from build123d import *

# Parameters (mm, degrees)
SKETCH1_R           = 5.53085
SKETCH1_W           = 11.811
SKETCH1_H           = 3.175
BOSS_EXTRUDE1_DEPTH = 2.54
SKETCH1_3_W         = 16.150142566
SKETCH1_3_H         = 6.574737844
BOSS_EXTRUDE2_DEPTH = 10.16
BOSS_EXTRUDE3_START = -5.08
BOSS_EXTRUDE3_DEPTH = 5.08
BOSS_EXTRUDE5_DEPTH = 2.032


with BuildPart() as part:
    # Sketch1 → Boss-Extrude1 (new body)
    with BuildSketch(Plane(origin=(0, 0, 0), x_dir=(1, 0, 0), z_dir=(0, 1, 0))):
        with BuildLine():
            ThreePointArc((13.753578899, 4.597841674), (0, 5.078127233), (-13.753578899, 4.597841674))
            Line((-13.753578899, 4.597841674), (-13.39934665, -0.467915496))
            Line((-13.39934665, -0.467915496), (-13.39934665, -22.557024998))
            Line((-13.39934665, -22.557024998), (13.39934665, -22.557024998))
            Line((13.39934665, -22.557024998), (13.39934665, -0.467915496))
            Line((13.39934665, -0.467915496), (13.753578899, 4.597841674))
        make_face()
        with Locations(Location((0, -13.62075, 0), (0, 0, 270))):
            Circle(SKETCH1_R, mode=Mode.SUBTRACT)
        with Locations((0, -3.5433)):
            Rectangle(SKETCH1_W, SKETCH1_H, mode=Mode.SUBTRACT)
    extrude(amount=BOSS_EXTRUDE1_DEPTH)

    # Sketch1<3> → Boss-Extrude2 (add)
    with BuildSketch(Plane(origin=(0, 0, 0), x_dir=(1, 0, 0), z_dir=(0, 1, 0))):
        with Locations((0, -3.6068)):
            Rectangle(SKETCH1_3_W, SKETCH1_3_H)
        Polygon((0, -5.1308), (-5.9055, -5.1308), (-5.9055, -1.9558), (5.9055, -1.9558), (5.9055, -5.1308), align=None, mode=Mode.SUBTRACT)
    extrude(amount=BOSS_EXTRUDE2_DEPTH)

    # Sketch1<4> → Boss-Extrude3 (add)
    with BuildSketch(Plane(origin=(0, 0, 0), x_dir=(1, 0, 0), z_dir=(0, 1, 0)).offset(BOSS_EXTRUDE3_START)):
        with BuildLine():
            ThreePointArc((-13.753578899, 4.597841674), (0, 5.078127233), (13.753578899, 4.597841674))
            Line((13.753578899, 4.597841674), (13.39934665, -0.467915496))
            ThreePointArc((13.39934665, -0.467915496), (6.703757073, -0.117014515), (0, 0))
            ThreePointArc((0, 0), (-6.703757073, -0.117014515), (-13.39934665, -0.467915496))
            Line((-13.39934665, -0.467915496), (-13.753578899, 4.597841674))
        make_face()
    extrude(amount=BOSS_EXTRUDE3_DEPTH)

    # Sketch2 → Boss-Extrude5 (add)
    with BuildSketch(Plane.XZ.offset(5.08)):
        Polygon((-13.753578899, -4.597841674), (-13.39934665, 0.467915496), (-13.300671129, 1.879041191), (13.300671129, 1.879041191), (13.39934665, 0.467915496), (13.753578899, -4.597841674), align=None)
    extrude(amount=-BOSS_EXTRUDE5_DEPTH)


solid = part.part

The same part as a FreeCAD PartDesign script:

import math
import FreeCAD as App
import Part
import Sketcher
from FreeCAD import Vector
Q = App.Units.Quantity

doc = App.newDocument("Part")
body = doc.addObject("PartDesign::Body", "Body")

# Sketch on XZ plane
sketch1 = body.newObject("Sketcher::SketchObject", "Sketch")
sketch1.AttachmentSupport = (doc.getObject("XZ_Plane"), [""])
sketch1.MapMode = "FlatFace"
sketch1.addGeometry([
    Part.ArcOfCircle(Part.Circle(Vector(0, 192.0875, 0), Vector(0, 0, 1), 197.165627), math.radians(-94), math.radians(-86)),  # 0
    Part.LineSegment(Vector(-13.753579, -4.597842, 0), Vector(-13.399347, 0.467915, 0)),  # 1
    Part.LineSegment(Vector(-13.399347, 0.467915, 0), Vector(-13.399347, 22.557025, 0)),  # 2
    Part.LineSegment(Vector(-13.399347, 22.557025, 0), Vector(13.399347, 22.557025, 0)),  # 3
    Part.LineSegment(Vector(13.399347, 22.557025, 0), Vector(13.399347, 0.467915, 0)),  # 4
    Part.LineSegment(Vector(13.399347, 0.467915, 0), Vector(13.753579, -4.597842, 0)),  # 5
    Part.Circle(Vector(0, 13.62075, 0), Vector(0, 0, 1), 5.53085),  # 6
    Part.LineSegment(Vector(5.9055, 5.1308, 0), Vector(-5.9055, 5.1308, 0)),  # 7
    Part.LineSegment(Vector(-5.9055, 5.1308, 0), Vector(-5.9055, 1.9558, 0)),  # 8
    Part.LineSegment(Vector(-5.9055, 1.9558, 0), Vector(5.9055, 1.9558, 0)),  # 9
    Part.LineSegment(Vector(5.9055, 1.9558, 0), Vector(5.9055, 5.1308, 0)),  # 10
], False)
sketch1.addConstraint([
    Sketcher.Constraint("Coincident", 0, 1, 1, 1),
    Sketcher.Constraint("Coincident", 1, 2, 2, 1),
    Sketcher.Constraint("Coincident", 2, 2, 3, 1),
    Sketcher.Constraint("Coincident", 3, 2, 4, 1),
    Sketcher.Constraint("Coincident", 4, 2, 5, 1),
    Sketcher.Constraint("Coincident", 5, 2, 0, 2),
    Sketcher.Constraint("Coincident", 7, 2, 8, 1),
    Sketcher.Constraint("Coincident", 8, 2, 9, 1),
    Sketcher.Constraint("Coincident", 9, 2, 10, 1),
    Sketcher.Constraint("Coincident", 10, 2, 7, 1),
    Sketcher.Constraint("Vertical", 2),
    Sketcher.Constraint("Horizontal", 3),
    Sketcher.Constraint("Vertical", 4),
    Sketcher.Constraint("Horizontal", 7),
    Sketcher.Constraint("Vertical", 8),
    Sketcher.Constraint("Horizontal", 9),
    Sketcher.Constraint("Vertical", 10),
    Sketcher.Constraint("Symmetric", 1, 2, 4, 2, -2),
    Sketcher.Constraint("Symmetric", 0, 1, 5, 2, -2),
    Sketcher.Constraint("PointOnObject", 6, 3, -2),
    Sketcher.Constraint("Angle", 1, Q("86 deg")),
    Sketcher.Constraint("Diameter", 6, Q("0.4355 in")),
    Sketcher.Constraint("DistanceX", 7, 2, 7, 1, Q("0.465 in")),
    Sketcher.Constraint("DistanceY", 8, 2, 8, 1, Q("0.125 in")),
    Sketcher.Constraint("DistanceY", -1, 1, 0, 3, Q("7.5625 in")),
    Sketcher.Constraint("DistanceY", -1, 1, 7, 2, Q("0.202 in")),
    Sketcher.Constraint("DistanceX", 7, 2, -1, 1, Q("0.2325 in")),
    Sketcher.Constraint("Radius", 0, 197.165627),
    Sketcher.Constraint("DistanceY", 2, 1, 2, 2, 22.08911),
    Sketcher.Constraint("DistanceX", 3, 1, 3, 2, 26.798693),
    Sketcher.Constraint("DistanceY", -1, 1, 6, 3, 13.62075),
    Sketcher.Constraint("DistanceX", -1, 1, 5, 2, 13.753579),
])
pad1 = body.newObject("PartDesign::Pad", "Pad")
pad1.Profile = sketch1
pad1.Length = Q("0.1 in")
pad1.Reversed = True

# Sketch on XZ plane
sketch2 = body.newObject("Sketcher::SketchObject", "Sketch001")
sketch2.AttachmentSupport = (doc.getObject("XZ_Plane"), [""])
sketch2.MapMode = "FlatFace"
sketch2.addGeometry([
    Part.LineSegment(Vector(-8.075071, 0.319431, 0), Vector(-8.075071, 6.894169, 0)),  # 0
    Part.LineSegment(Vector(-8.075071, 6.894169, 0), Vector(8.075071, 6.894169, 0)),  # 1
    Part.LineSegment(Vector(8.075071, 6.894169, 0), Vector(8.075071, 0.319431, 0)),  # 2
    Part.LineSegment(Vector(8.075071, 0.319431, 0), Vector(-8.075071, 0.319431, 0)),  # 3
    Part.LineSegment(Vector(5.9055, 5.1308, 0), Vector(-5.9055, 5.1308, 0)),  # 4
    Part.LineSegment(Vector(-5.9055, 5.1308, 0), Vector(-5.9055, 1.9558, 0)),  # 5
    Part.LineSegment(Vector(-5.9055, 1.9558, 0), Vector(5.9055, 1.9558, 0)),  # 6
    Part.LineSegment(Vector(5.9055, 1.9558, 0), Vector(5.9055, 5.1308, 0)),  # 7
], False)
sketch2.addConstraint([
    Sketcher.Constraint("Coincident", 0, 2, 1, 1),
    Sketcher.Constraint("Coincident", 1, 2, 2, 1),
    Sketcher.Constraint("Coincident", 2, 2, 3, 1),
    Sketcher.Constraint("Coincident", 3, 2, 0, 1),
    Sketcher.Constraint("Coincident", 4, 2, 5, 1),
    Sketcher.Constraint("Coincident", 5, 2, 6, 1),
    Sketcher.Constraint("Coincident", 6, 2, 7, 1),
    Sketcher.Constraint("Coincident", 7, 2, 4, 1),
    Sketcher.Constraint("Vertical", 0),
    Sketcher.Constraint("Horizontal", 1),
    Sketcher.Constraint("Vertical", 2),
    Sketcher.Constraint("Horizontal", 3),
    Sketcher.Constraint("Horizontal", 4),
    Sketcher.Constraint("Vertical", 5),
    Sketcher.Constraint("Horizontal", 6),
    Sketcher.Constraint("Vertical", 7),
    Sketcher.Constraint("DistanceX", 4, 2, 4, 1, Q("0.465 in")),
    Sketcher.Constraint("DistanceY", 5, 2, 5, 1, Q("0.125 in")),
    Sketcher.Constraint("DistanceY", -1, 1, 4, 2, Q("0.202 in")),
    Sketcher.Constraint("DistanceX", 4, 2, -1, 1, Q("0.2325 in")),
    Sketcher.Constraint("DistanceX", 1, 1, 1, 2, 16.150143),
    Sketcher.Constraint("DistanceY", 0, 1, 0, 2, 6.574738),
    Sketcher.Constraint("DistanceX", 0, 2, -1, 1, 8.075071),
    Sketcher.Constraint("DistanceY", -1, 1, 0, 2, 6.894169),
])
pad2 = body.newObject("PartDesign::Pad", "Pad001")
pad2.Profile = sketch2
pad2.Length = Q("0.4 in")
pad2.Reversed = True

# Sketch on XZ plane
sketch3 = body.newObject("Sketcher::SketchObject", "Sketch002")
sketch3.AttachmentSupport = (doc.getObject("XZ_Plane"), [""])
sketch3.MapMode = "FlatFace"
sketch3.AttachmentOffset = App.Placement(Vector(0, 0, 0.2 * 25.4), App.Rotation())
sketch3.addGeometry([
    Part.ArcOfCircle(Part.Circle(Vector(0, 192.0875, 0), Vector(0, 0, 1), 197.165627), math.radians(-94), math.radians(-86)),  # 0
    Part.LineSegment(Vector(-13.753579, -4.597842, 0), Vector(-13.399347, 0.467915, 0)),  # 1
    Part.ArcOfCircle(Part.Circle(Vector(0, 192.0875, 0), Vector(0, 0, 1), 192.0875), math.radians(-94), math.radians(-90)),  # 2
    Part.ArcOfCircle(Part.Circle(Vector(0, 192.0875, 0), Vector(0, 0, 1), 192.0875), math.radians(-90), math.radians(-86)),  # 3
    Part.LineSegment(Vector(13.399347, 0.467915, 0), Vector(13.753579, -4.597842, 0)),  # 4
], False)
sketch3.addConstraint([
    Sketcher.Constraint("Coincident", 0, 1, 1, 1),
    Sketcher.Constraint("Coincident", 1, 2, 2, 1),
    Sketcher.Constraint("Tangent", 2, 2, 3, 1),
    Sketcher.Constraint("Coincident", 3, 2, 4, 1),
    Sketcher.Constraint("Coincident", 4, 2, 0, 2),
    Sketcher.Constraint("Coincident", 2, 2, -1, 1),
    Sketcher.Constraint("Coincident", 2, 3, 0, 3),
    Sketcher.Constraint("Equal", 2, 3),
    Sketcher.Constraint("Symmetric", 1, 2, 3, 2, -2),
    Sketcher.Constraint("Horizontal", 0, 1, 4, 2),
    Sketcher.Constraint("Angle", 1, Q("86 deg")),
    Sketcher.Constraint("Radius", 2, Q("7.5625 in")),
    Sketcher.Constraint("Radius", 0, 197.165627),
    Sketcher.Constraint("DistanceX", 0, 1, -1, 1, 13.753579),
])
pad3 = body.newObject("PartDesign::Pad", "Pad002")
pad3.Profile = sketch3
pad3.Length = Q("0.2 in")
pad3.Reversed = True

# Sketch on XZ plane
sketch4 = body.newObject("Sketcher::SketchObject", "Sketch003")
sketch4.AttachmentSupport = (doc.getObject("XZ_Plane"), [""])
sketch4.MapMode = "FlatFace"
sketch4.AttachmentOffset = App.Placement(Vector(0, 0, 0.2 * 25.4), App.Rotation())
sketch4.addGeometry([
    Part.LineSegment(Vector(-13.399347, 0.467915, 0), Vector(-13.753579, -4.597842, 0)),  # 0
    Part.LineSegment(Vector(-13.753579, -4.597842, 0), Vector(13.753579, -4.597842, 0)),  # 1
    Part.LineSegment(Vector(13.753579, -4.597842, 0), Vector(13.399347, 0.467915, 0)),  # 2
    Part.LineSegment(Vector(13.399347, 0.467915, 0), Vector(13.300671, 1.879041, 0)),  # 3
    Part.LineSegment(Vector(13.300671, 1.879041, 0), Vector(-13.300671, 1.879041, 0)),  # 4
    Part.LineSegment(Vector(-13.300671, 1.879041, 0), Vector(-13.399347, 0.467915, 0)),  # 5
], False)
sketch4.addConstraint([
    Sketcher.Constraint("Coincident", 0, 2, 1, 1),
    Sketcher.Constraint("Coincident", 1, 2, 2, 1),
    Sketcher.Constraint("Coincident", 2, 2, 3, 1),
    Sketcher.Constraint("Coincident", 3, 2, 4, 1),
    Sketcher.Constraint("Coincident", 4, 2, 5, 1),
    Sketcher.Constraint("Coincident", 5, 2, 0, 1),
    Sketcher.Constraint("Horizontal", 1),
    Sketcher.Constraint("Horizontal", 4),
    Sketcher.Constraint("Symmetric", 2, 2, 5, 2, -2),
    Sketcher.Constraint("Parallel", 2, 3),
    Sketcher.Constraint("Parallel", 0, 5),
    Sketcher.Constraint("Equal", 0, 2),
    Sketcher.Constraint("Angle", 0, Q("-94 deg")),
    Sketcher.Constraint("Distance", 3, 1.414572),
    Sketcher.Constraint("DistanceX", 1, 1, 1, 2, 27.507158),
    Sketcher.Constraint("DistanceX", 4, 2, 4, 1, 26.601342),
    Sketcher.Constraint("DistanceY", 0, 2, -1, 1, 4.597842),
])
pad4 = body.newObject("PartDesign::Pad", "Pad003")
pad4.Profile = sketch4
pad4.Length = Q("0.08 in")
pad4.Reversed = True

doc.recompute()
